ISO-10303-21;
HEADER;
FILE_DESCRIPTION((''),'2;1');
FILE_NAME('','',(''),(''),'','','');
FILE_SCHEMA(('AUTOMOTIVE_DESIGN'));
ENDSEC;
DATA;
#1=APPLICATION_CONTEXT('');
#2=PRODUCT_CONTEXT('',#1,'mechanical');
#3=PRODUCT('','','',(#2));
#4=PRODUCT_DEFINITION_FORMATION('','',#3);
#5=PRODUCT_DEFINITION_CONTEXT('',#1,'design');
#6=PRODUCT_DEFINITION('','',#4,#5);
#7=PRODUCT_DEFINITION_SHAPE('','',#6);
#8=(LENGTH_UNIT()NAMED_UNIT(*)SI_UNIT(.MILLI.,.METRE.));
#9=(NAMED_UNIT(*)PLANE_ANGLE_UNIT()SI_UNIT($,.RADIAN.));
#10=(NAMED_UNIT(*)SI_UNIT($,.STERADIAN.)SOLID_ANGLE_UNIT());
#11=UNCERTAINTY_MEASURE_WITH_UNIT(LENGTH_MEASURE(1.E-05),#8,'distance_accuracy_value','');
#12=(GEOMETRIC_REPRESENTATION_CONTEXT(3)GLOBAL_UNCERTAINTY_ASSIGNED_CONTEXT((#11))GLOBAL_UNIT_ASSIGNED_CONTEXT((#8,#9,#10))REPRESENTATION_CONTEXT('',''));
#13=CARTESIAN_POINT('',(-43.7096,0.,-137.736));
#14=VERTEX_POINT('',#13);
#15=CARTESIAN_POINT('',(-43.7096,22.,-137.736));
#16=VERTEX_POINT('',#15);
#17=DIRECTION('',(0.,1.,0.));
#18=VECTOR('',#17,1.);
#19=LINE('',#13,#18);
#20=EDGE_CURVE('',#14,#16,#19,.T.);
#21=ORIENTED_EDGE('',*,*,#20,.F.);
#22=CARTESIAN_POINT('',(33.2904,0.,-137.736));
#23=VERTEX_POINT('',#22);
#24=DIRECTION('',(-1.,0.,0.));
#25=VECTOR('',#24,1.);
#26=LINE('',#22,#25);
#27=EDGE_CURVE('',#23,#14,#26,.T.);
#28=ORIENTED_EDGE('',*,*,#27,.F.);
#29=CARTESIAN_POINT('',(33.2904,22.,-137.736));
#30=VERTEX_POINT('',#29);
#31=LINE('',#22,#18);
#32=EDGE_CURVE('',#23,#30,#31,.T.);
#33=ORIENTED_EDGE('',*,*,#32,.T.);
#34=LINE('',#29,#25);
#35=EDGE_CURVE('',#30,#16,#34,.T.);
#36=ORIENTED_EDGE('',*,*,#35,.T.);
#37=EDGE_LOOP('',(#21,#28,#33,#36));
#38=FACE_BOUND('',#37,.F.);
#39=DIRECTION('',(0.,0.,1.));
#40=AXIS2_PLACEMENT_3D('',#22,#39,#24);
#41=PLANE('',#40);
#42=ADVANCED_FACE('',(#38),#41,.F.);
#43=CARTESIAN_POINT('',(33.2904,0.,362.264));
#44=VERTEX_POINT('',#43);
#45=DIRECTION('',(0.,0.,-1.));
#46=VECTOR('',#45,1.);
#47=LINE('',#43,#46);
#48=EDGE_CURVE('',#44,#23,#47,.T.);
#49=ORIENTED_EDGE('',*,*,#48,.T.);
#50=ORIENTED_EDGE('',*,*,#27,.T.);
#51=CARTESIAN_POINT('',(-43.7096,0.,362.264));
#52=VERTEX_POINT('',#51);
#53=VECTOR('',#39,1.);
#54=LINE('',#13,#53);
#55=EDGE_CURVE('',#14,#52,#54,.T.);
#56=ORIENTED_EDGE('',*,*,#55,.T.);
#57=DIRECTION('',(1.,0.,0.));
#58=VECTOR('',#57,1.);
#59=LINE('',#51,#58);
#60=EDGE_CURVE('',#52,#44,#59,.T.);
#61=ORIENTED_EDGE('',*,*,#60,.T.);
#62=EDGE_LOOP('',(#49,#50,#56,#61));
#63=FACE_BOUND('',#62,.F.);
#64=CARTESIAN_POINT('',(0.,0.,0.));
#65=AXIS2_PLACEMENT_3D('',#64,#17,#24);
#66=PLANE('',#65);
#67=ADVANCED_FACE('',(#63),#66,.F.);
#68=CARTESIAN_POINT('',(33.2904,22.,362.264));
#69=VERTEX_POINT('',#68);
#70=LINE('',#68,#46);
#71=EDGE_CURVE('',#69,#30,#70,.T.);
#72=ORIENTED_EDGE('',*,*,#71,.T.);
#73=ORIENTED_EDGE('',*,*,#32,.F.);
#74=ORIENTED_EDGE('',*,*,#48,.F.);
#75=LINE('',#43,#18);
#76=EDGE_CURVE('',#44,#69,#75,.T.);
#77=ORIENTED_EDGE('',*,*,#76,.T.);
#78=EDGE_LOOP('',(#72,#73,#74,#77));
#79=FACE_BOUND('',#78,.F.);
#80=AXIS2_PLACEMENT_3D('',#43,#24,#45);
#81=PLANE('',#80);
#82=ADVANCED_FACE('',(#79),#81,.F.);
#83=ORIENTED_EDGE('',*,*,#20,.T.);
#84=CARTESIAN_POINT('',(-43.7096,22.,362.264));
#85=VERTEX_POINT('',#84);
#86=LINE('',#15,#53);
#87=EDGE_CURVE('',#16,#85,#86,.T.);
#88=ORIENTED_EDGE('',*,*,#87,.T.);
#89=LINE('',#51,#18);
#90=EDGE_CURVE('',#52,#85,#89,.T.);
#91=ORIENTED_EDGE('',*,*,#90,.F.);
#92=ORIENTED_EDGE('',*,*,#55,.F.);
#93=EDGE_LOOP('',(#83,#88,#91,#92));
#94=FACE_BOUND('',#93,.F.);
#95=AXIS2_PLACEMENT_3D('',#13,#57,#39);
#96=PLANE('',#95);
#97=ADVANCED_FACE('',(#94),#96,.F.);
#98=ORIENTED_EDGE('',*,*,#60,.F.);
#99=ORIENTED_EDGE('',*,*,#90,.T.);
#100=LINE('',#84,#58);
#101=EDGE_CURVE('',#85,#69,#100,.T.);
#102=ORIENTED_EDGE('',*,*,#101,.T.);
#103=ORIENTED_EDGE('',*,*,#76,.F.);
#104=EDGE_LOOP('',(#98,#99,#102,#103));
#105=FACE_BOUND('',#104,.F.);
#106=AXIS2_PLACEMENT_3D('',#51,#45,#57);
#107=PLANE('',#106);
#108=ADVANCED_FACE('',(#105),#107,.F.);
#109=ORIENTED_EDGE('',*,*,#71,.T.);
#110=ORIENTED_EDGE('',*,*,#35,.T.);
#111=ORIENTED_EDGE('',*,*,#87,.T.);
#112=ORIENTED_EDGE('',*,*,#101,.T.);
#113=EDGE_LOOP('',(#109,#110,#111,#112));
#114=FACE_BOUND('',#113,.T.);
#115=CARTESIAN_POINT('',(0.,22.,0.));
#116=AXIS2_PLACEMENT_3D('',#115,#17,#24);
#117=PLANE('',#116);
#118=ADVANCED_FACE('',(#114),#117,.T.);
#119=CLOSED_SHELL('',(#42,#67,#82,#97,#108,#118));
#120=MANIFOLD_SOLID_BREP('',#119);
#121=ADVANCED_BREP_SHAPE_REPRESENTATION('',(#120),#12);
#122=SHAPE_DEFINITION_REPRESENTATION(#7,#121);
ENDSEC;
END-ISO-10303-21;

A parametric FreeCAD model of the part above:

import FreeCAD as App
import Part
import Sketcher

V = App.Vector
Q = App.Units.Quantity


def add_polygon(sketch, points):
    """Adds a closed chain of lines whose ends are joined by coincident constraints."""
    first, n = sketch.GeometryCount, len(points)
    for a, b in zip(points, points[1:] + points[:1]):
        sketch.addGeometry(Part.LineSegment(App.Vector(*a, 0), App.Vector(*b, 0)), False)
    for i in range(n):
        sketch.addConstraint(Sketcher.Constraint("Coincident", first + i, 2, first + (i + 1) % n, 1))

doc = App.newDocument("Part")
params = doc.addObject("Spreadsheet::Sheet", "Params")
for row, (alias, value) in enumerate([
    ("sketch1_width", "77 mm"),
    ("sketch1_height", "500 mm"),
    ("pad1_length", "22 mm"),
], start=1):
    params.set(f"A{row}", alias)
    params.set(f"B{row}", "=" + value)
    params.setAlias(f"B{row}", alias)

body = doc.addObject("PartDesign::Body", "Body")

# Sketch on XZ plane
sketch1 = doc.addObject("Sketcher::SketchObject", "Sketch")
body.addObject(sketch1)
sketch1.AttachmentSupport = (doc.XZ_Plane, [""])
sketch1.MapMode = "FlatFace"
add_polygon(sketch1, [(-44, -138), (-44, 362), (33, 362), (33, -138)])  # lines 0-3
sketch1.addConstraint([
    Sketcher.Constraint("Vertical", 0),
    Sketcher.Constraint("Horizontal", 1),
    Sketcher.Constraint("Vertical", 2),
    Sketcher.Constraint("Horizontal", 3),
    Sketcher.Constraint("DistanceX", 1, 1, 1, 2, Q("77 mm")),
    Sketcher.Constraint("DistanceY", 0, 1, 0, 2, Q("500 mm")),
    Sketcher.Constraint("DistanceY", -1, 1, 0, 2, Q("362.264 mm")),
    Sketcher.Constraint("DistanceX", 0, 2, -1, 1, Q("43.7096 mm")),
])
sketch1.setExpression("Constraints[8]", "Params.sketch1_width")
sketch1.setExpression("Constraints[9]", "Params.sketch1_height")
pad1 = doc.addObject("PartDesign::Pad", "Pad")
body.addObject(pad1)
pad1.Profile = sketch1
pad1.setExpression("Length", "Params.pad1_length")
pad1.Reversed = True

doc.recompute()
